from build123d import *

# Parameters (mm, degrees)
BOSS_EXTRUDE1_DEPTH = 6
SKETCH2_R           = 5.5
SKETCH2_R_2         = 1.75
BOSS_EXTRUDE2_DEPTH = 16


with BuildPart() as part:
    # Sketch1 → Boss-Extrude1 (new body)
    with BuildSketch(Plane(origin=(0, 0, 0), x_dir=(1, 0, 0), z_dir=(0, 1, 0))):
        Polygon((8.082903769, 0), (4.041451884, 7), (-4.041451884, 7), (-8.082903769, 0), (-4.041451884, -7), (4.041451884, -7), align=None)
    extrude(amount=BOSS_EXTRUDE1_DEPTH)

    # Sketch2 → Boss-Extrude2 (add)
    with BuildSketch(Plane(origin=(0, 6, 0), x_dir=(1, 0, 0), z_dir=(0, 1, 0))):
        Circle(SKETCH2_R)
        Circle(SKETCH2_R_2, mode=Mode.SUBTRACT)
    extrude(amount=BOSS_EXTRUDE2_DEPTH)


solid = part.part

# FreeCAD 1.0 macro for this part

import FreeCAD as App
import Part
import Sketcher
from FreeCAD import Vector
Q = App.Units.Quantity

doc = App.newDocument("Part")
body = doc.addObject("PartDesign::Body", "Body")

sketch1 = body.newObject("Sketcher::SketchObject", "Sketch")
sketch1.AttachmentSupport = (doc.getObject("XZ_Plane"), [""])
sketch1.MapMode = "FlatFace"
sketch1.addGeometry(Part.LineSegment(Vector(8, 0, 0), Vector(4, -7, 0)), False)
sketch1.addGeometry(Part.LineSegment(Vector(4, -7, 0), Vector(-4, -7, 0)), False)
sketch1.addGeometry(Part.LineSegment(Vector(-4, -7, 0), Vector(-8, 0, 0)), False)
sketch1.addGeometry(Part.LineSegment(Vector(-8, 0, 0), Vector(-4, 7, 0)), False)
sketch1.addGeometry(Part.LineSegment(Vector(-4, 7, 0), Vector(4, 7, 0)), False)
sketch1.addGeometry(Part.LineSegment(Vector(4, 7, 0), Vector(8, 0, 0)), False)
sketch1.addConstraint(Sketcher.Constraint("Coincident", 0, 2, 1, 1))
sketch1.addConstraint(Sketcher.Constraint("Coincident", 1, 2, 2, 1))
sketch1.addConstraint(Sketcher.Constraint("Coincident", 2, 2, 3, 1))
sketch1.addConstraint(Sketcher.Constraint("Coincident", 3, 2, 4, 1))
sketch1.addConstraint(Sketcher.Constraint("Coincident", 4, 2, 5, 1))
sketch1.addConstraint(Sketcher.Constraint("Coincident", 5, 2, 0, 1))
sketch1.addConstraint(Sketcher.Constraint("Horizontal", 1))
sketch1.addConstraint(Sketcher.Constraint("Horizontal", 4))
sketch1.addConstraint(Sketcher.Constraint("Symmetric", 0, 2, 3, 2, -1, 1))
sketch1.addConstraint(Sketcher.Constraint("Symmetric", 2, 2, 5, 2, -1, 1))
sketch1.addConstraint(Sketcher.Constraint("PointOnObject", 2, 2, -1))
sketch1.addConstraint(Sketcher.Constraint("Parallel", 2, 5))
sketch1.addConstraint(Sketcher.Constraint("Vertical", 1, 2, 3, 2))
sketch1.addConstraint(Sketcher.Constraint("Angle", 0, Q("-120 deg")))
sketch1.addConstraint(Sketcher.Constraint("DistanceY", 0, 2, -1, 1, Q("7 mm")))
sketch1.addConstraint(Sketcher.Constraint("DistanceX", 1, 2, 1, 1, Q("8.082904 mm")))
pad1 = body.newObject("PartDesign::Pad", "Pad")
pad1.Profile = sketch1
pad1.Length = 6
pad1.Reversed = True

sketch2 = body.newObject("Sketcher::SketchObject", "Sketch001")
sketch2.AttachmentSupport = (doc.getObject("XZ_Plane"), [""])
sketch2.MapMode = "FlatFace"
sketch2.AttachmentOffset = App.Placement(Vector(0, 0, -6), App.Rotation())
sketch2.addGeometry(Part.Circle(Vector(0, 0, 0), Vector(0, 0, 1), 5.5), False)
sketch2.addGeometry(Part.Circle(Vector(0, 0, 0), Vector(0, 0, 1), 1.8), False)
sketch2.addConstraint(Sketcher.Constraint("Coincident", 0, 3, -1, 1))
sketch2.addConstraint(Sketcher.Constraint("Coincident", 1, 3, -1, 1))
sketch2.addConstraint(Sketcher.Constraint("Diameter", 0, Q("11 mm")))
sketch2.addConstraint(Sketcher.Constraint("Diameter", 1, Q("3.5 mm")))
pad2 = body.newObject("PartDesign::Pad", "Pad001")
pad2.Profile = sketch2
pad2.Length = 16
pad2.Reversed = True

doc.recompute()
